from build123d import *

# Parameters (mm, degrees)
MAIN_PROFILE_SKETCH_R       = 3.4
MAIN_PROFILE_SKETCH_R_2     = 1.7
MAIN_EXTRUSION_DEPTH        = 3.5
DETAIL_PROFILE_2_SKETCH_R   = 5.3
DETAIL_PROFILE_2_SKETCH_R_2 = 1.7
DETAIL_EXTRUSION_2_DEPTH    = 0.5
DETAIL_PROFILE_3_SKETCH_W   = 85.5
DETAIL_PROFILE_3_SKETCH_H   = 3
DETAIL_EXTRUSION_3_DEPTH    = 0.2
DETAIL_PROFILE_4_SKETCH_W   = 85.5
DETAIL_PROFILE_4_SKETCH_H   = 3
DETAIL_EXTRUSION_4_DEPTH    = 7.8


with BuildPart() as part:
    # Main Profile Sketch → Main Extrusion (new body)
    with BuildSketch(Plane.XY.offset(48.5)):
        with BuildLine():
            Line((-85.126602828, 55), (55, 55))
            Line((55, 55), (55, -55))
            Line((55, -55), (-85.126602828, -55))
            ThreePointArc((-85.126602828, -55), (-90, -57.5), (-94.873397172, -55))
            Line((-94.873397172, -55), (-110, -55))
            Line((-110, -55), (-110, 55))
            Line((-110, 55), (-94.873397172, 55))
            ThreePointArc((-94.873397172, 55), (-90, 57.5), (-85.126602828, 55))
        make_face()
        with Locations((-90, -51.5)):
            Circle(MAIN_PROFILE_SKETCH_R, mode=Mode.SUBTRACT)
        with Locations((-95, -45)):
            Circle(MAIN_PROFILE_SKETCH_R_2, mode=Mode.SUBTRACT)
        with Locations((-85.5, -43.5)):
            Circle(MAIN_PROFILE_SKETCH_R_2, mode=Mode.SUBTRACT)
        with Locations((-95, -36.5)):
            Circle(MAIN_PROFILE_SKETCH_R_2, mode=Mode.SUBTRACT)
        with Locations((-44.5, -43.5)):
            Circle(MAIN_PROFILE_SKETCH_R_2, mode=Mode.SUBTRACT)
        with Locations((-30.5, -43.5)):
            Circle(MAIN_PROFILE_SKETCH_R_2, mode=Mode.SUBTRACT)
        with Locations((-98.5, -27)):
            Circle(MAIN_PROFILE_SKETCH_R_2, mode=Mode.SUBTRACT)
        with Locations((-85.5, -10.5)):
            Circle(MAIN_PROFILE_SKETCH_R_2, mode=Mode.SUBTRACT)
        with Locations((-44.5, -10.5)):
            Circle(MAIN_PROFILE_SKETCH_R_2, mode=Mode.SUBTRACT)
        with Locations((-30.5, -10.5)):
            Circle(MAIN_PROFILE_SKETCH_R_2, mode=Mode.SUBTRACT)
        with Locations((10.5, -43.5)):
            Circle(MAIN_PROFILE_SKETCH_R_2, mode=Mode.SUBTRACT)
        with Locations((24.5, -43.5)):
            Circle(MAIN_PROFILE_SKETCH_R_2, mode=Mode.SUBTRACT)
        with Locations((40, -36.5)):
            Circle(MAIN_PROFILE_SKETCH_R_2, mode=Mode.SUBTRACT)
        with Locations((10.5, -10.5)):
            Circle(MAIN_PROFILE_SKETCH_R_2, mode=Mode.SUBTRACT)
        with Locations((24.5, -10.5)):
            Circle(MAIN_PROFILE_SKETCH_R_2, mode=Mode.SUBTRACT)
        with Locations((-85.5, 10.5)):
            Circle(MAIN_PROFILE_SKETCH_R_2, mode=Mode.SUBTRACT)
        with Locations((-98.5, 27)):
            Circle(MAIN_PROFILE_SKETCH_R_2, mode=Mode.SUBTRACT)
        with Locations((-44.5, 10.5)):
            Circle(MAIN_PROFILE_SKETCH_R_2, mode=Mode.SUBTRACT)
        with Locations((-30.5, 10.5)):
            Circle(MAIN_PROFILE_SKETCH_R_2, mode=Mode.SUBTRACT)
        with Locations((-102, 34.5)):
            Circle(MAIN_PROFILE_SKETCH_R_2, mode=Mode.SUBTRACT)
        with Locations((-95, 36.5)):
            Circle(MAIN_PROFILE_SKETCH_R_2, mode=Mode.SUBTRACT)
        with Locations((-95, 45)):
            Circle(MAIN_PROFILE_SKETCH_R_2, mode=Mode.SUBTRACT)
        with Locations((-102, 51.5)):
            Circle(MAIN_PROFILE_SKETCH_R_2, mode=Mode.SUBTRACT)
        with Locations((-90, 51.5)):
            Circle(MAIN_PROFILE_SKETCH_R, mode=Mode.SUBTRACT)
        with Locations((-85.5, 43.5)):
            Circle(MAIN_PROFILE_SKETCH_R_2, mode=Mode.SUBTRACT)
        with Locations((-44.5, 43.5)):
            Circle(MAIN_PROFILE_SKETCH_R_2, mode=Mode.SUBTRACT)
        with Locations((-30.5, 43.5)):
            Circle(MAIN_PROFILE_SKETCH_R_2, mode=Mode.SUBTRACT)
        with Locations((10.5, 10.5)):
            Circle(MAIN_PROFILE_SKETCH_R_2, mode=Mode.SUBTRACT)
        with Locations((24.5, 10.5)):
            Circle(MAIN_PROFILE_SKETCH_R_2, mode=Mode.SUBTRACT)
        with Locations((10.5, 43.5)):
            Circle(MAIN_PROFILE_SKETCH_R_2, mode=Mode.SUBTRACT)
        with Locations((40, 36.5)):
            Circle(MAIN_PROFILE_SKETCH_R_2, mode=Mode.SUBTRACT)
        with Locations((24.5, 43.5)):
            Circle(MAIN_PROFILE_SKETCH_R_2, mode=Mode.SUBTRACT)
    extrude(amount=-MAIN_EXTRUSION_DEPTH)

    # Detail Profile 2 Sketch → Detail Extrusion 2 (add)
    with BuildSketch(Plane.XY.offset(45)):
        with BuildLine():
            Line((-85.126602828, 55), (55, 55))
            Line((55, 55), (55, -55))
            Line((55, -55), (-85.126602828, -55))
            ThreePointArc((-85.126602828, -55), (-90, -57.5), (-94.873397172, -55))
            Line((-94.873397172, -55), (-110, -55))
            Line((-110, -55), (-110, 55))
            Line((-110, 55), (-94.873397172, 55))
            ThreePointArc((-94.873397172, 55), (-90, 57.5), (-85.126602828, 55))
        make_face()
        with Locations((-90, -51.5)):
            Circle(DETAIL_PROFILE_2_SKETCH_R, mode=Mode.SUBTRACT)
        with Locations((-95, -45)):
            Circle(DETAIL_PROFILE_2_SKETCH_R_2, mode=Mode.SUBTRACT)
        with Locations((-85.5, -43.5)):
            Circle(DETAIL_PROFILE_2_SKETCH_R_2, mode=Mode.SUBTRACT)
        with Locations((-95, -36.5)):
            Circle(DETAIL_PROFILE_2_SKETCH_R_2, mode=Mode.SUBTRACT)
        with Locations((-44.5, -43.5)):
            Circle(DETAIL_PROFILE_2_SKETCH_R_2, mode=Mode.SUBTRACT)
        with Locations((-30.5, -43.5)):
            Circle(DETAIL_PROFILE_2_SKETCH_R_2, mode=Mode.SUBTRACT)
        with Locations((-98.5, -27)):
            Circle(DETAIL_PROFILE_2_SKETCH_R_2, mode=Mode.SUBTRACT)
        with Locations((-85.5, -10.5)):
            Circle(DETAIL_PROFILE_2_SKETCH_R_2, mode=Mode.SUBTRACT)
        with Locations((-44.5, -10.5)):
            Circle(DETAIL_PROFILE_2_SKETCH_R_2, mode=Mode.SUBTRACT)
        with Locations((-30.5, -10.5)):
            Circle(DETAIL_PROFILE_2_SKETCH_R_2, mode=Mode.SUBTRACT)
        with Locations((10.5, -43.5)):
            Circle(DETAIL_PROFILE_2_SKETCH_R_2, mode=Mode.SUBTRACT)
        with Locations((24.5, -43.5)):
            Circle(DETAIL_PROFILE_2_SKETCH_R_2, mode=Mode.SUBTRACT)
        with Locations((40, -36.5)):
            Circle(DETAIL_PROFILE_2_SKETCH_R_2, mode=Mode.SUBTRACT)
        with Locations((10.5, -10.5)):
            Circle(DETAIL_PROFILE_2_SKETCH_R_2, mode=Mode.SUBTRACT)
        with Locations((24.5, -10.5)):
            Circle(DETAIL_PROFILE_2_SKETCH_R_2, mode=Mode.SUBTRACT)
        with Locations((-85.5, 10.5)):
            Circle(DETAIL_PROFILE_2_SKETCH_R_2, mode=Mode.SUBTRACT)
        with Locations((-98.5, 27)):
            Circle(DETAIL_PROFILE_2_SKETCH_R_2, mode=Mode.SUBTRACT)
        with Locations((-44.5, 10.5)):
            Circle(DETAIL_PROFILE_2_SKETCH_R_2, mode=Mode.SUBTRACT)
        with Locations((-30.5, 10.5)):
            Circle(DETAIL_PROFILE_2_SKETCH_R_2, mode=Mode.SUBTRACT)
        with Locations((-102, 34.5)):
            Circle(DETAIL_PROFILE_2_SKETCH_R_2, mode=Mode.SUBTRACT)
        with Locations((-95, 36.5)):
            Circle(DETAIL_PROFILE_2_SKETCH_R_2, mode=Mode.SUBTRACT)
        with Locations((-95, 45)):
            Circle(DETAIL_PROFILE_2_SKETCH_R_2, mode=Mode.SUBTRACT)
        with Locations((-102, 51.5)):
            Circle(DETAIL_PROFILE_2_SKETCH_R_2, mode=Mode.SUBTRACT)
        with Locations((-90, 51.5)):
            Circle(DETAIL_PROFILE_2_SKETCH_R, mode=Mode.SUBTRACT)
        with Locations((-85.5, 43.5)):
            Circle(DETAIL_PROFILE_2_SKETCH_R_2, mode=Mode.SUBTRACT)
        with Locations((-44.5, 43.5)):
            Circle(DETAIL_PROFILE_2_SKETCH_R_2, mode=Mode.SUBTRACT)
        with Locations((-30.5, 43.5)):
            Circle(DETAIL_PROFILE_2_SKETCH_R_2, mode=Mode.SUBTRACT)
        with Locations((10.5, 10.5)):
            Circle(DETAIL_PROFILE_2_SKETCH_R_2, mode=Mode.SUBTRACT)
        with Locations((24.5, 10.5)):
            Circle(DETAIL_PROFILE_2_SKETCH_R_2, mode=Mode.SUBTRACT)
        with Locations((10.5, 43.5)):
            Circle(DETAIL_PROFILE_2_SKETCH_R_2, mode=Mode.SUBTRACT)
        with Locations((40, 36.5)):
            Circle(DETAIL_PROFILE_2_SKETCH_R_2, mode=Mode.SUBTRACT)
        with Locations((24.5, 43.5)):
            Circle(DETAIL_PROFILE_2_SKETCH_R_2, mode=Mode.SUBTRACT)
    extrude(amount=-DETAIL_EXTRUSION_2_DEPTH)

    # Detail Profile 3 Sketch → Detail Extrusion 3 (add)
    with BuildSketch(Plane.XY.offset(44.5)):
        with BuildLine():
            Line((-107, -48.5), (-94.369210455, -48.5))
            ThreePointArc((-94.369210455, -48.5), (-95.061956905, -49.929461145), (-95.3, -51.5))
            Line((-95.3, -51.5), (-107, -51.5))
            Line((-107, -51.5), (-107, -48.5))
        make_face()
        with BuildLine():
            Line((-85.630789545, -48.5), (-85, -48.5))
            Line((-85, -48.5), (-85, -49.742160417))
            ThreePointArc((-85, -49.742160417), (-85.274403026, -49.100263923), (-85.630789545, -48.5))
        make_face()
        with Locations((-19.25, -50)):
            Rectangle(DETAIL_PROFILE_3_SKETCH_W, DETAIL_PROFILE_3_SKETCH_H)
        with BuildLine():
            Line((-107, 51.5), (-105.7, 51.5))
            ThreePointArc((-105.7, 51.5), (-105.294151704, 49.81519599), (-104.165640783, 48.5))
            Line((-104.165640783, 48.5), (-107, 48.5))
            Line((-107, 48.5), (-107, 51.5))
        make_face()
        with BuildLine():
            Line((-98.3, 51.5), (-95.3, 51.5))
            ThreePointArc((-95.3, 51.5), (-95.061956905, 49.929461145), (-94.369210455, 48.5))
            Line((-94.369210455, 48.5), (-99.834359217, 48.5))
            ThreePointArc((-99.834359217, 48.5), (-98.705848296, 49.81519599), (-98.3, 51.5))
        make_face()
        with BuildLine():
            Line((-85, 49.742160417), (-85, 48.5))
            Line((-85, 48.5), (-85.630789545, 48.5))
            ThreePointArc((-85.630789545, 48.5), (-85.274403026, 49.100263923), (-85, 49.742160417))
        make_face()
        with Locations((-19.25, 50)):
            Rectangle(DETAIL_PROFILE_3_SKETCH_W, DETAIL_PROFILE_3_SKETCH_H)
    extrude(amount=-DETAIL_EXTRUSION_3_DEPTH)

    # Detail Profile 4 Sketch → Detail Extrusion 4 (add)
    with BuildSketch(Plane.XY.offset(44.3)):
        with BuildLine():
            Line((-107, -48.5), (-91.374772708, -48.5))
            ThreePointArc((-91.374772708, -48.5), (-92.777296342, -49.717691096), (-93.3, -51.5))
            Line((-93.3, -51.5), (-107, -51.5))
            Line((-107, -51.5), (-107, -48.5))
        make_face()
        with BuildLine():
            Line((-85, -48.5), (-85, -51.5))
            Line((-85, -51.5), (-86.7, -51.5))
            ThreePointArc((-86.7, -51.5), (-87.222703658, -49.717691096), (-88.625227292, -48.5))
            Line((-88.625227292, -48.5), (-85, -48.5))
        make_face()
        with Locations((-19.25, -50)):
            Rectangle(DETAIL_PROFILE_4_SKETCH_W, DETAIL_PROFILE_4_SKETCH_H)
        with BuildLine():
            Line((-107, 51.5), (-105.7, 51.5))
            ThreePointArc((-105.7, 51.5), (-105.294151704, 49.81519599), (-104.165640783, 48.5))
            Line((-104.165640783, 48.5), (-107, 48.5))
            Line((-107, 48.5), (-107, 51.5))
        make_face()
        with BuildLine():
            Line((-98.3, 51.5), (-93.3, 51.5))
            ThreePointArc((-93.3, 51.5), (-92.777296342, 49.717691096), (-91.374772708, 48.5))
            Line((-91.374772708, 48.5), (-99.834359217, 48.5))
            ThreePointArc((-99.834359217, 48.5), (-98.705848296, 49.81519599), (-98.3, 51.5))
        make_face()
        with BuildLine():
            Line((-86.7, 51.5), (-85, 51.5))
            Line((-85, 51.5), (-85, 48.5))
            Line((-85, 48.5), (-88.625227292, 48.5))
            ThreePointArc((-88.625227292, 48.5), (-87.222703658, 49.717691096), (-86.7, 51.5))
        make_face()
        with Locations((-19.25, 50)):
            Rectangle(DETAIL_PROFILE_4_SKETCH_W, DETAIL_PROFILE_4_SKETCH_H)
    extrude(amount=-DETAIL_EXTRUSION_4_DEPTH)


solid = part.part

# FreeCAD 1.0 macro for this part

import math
import FreeCAD as App
import Part
import Sketcher
Q = App.Units.Quantity


def add_polygon(sketch, points):
    """Adds a closed chain of lines whose ends are joined by coincident constraints."""
    first, n = sketch.GeometryCount, len(points)
    for a, b in zip(points, points[1:] + points[:1]):
        sketch.addGeometry(Part.LineSegment(App.Vector(*a, 0), App.Vector(*b, 0)), False)
    for i in range(n):
        sketch.addConstraint(Sketcher.Constraint("Coincident", first + i, 2, first + (i + 1) % n, 1))

doc = App.newDocument("Part")
body = doc.addObject("PartDesign::Body", "Body")

# Sketch on XY plane
sketch1 = body.newObject("Sketcher::SketchObject", "Sketch")
sketch1.AttachmentSupport = (doc.getObject("XY_Plane"), [""])
sketch1.MapMode = "FlatFace"
sketch1.AttachmentOffset = App.Placement(App.Vector(0, 0, 48.5), App.Rotation())
sketch1.addGeometry([
    Part.LineSegment(App.Vector(55, 55, 0), App.Vector(-85.126603, 55, 0)),  # 0
    Part.ArcOfCircle(Part.Circle(App.Vector(-90, 51.5, 0), App.Vector(0, 0, 1), 6), math.radians(35.685335), math.radians(144.314665)),  # 1
    Part.LineSegment(App.Vector(-94.873397, 55, 0), App.Vector(-110, 55, 0)),  # 2
    Part.LineSegment(App.Vector(-110, 55, 0), App.Vector(-110, -55, 0)),  # 3
    Part.LineSegment(App.Vector(-110, -55, 0), App.Vector(-94.873397, -55, 0)),  # 4
    Part.ArcOfCircle(Part.Circle(App.Vector(-90, -51.5, 0), App.Vector(0, 0, 1), 6), math.radians(-144.314665), math.radians(-35.685335)),  # 5
    Part.LineSegment(App.Vector(-85.126603, -55, 0), App.Vector(55, -55, 0)),  # 6
    Part.LineSegment(App.Vector(55, -55, 0), App.Vector(55, 55, 0)),  # 7
    Part.Circle(App.Vector(24.5, -43.5, 0), App.Vector(0, 0, 1), 1.7),  # 8
    Part.Circle(App.Vector(10.5, -43.5, 0), App.Vector(0, 0, 1), 1.7),  # 9
    Part.Circle(App.Vector(40, -36.5, 0), App.Vector(0, 0, 1), 1.7),  # 10
    Part.Circle(App.Vector(-30.5, -43.5, 0), App.Vector(0, 0, 1), 1.7),  # 11
    Part.Circle(App.Vector(24.5, -10.5, 0), App.Vector(0, 0, 1), 1.7),  # 12
    Part.Circle(App.Vector(10.5, -10.5, 0), App.Vector(0, 0, 1), 1.7),  # 13
    Part.Circle(App.Vector(-30.5, -10.5, 0), App.Vector(0, 0, 1), 1.7),  # 14
    Part.Circle(App.Vector(-44.5, -43.5, 0), App.Vector(0, 0, 1), 1.7),  # 15
    Part.Circle(App.Vector(-85.5, -43.5, 0), App.Vector(0, 0, 1), 1.7),  # 16
    Part.Circle(App.Vector(-90, -51.5, 0), App.Vector(0, 0, 1), 3.4),  # 17
    Part.Circle(App.Vector(-95, -45, 0), App.Vector(0, 0, 1), 1.7),  # 18
    Part.Circle(App.Vector(-95, -36.5, 0), App.Vector(0, 0, 1), 1.7),  # 19
    Part.Circle(App.Vector(-44.5, -10.5, 0), App.Vector(0, 0, 1), 1.7),  # 20
    Part.Circle(App.Vector(-98.5, -27, 0), App.Vector(0, 0, 1), 1.7),  # 21
    Part.Circle(App.Vector(-85.5, -10.5, 0), App.Vector(0, 0, 1), 1.7),  # 22
    Part.Circle(App.Vector(24.5, 10.5, 0), App.Vector(0, 0, 1), 1.7),  # 23
    Part.Circle(App.Vector(10.5, 10.5, 0), App.Vector(0, 0, 1), 1.7),  # 24
    Part.Circle(App.Vector(-30.5, 10.5, 0), App.Vector(0, 0, 1), 1.7),  # 25
    Part.Circle(App.Vector(40, 36.5, 0), App.Vector(0, 0, 1), 1.7),  # 26
    Part.Circle(App.Vector(24.5, 43.5, 0), App.Vector(0, 0, 1), 1.7),  # 27
    Part.Circle(App.Vector(10.5, 43.5, 0), App.Vector(0, 0, 1), 1.7),  # 28
    Part.Circle(App.Vector(-30.5, 43.5, 0), App.Vector(0, 0, 1), 1.7),  # 29
    Part.Circle(App.Vector(-44.5, 10.5, 0), App.Vector(0, 0, 1), 1.7),  # 30
    Part.Circle(App.Vector(-85.5, 10.5, 0), App.Vector(0, 0, 1), 1.7),  # 31
    Part.Circle(App.Vector(-98.5, 27, 0), App.Vector(0, 0, 1), 1.7),  # 32
    Part.Circle(App.Vector(-44.5, 43.5, 0), App.Vector(0, 0, 1), 1.7),  # 33
    Part.Circle(App.Vector(-95, 36.5, 0), App.Vector(0, 0, 1), 1.7),  # 34
    Part.Circle(App.Vector(-102, 34.5, 0), App.Vector(0, 0, 1), 1.7),  # 35
    Part.Circle(App.Vector(-85.5, 43.5, 0), App.Vector(0, 0, 1), 1.7),  # 36
    Part.Circle(App.Vector(-95, 45, 0), App.Vector(0, 0, 1), 1.7),  # 37
    Part.Circle(App.Vector(-90, 51.5, 0), App.Vector(0, 0, 1), 3.4),  # 38
    Part.Circle(App.Vector(-102, 51.5, 0), App.Vector(0, 0, 1), 1.7),  # 39
], False)
sketch1.addConstraint([
    Sketcher.Constraint("Coincident", 0, 2, 1, 1),
    Sketcher.Constraint("Coincident", 1, 2, 2, 1),
    Sketcher.Constraint("Coincident", 2, 2, 3, 1),
    Sketcher.Constraint("Coincident", 3, 2, 4, 1),
    Sketcher.Constraint("Coincident", 4, 2, 5, 1),
    Sketcher.Constraint("Coincident", 5, 2, 6, 1),
    Sketcher.Constraint("Coincident", 6, 2, 7, 1),
    Sketcher.Constraint("Coincident", 7, 2, 0, 1),
    Sketcher.Constraint("Horizontal", 0),
    Sketcher.Constraint("Horizontal", 2),
    Sketcher.Constraint("Vertical", 3),
    Sketcher.Constraint("Horizontal", 4),
    Sketcher.Constraint("Horizontal", 6),
    Sketcher.Constraint("Vertical", 7),
    Sketcher.Constraint("Coincident", 17, 3, 5, 3),
    Sketcher.Constraint("Coincident", 38, 3, 1, 3),
    Sketcher.Constraint("Equal", 1, 5),
    Sketcher.Constraint("Equal", 8, 9),
    Sketcher.Constraint("Equal", 9, 10),
    Sketcher.Constraint("Equal", 10, 11),
    Sketcher.Constraint("Equal", 11, 12),
    Sketcher.Constraint("Equal", 12, 13),
    Sketcher.Constraint("Equal", 13, 14),
    Sketcher.Constraint("Equal", 14, 15),
    Sketcher.Constraint("Equal", 15, 16),
    Sketcher.Constraint("Equal", 16, 18),
    Sketcher.Constraint("Equal", 18, 19),
    Sketcher.Constraint("Equal", 19, 20),
    Sketcher.Constraint("Equal", 20, 21),
    Sketcher.Constraint("Equal", 21, 22),
    Sketcher.Constraint("Equal", 22, 23),
    Sketcher.Constraint("Equal", 23, 24),
    Sketcher.Constraint("Equal", 24, 25),
    Sketcher.Constraint("Equal", 25, 26),
    Sketcher.Constraint("Equal", 26, 27),
    Sketcher.Constraint("Equal", 27, 28),
    Sketcher.Constraint("Equal", 28, 29),
    Sketcher.Constraint("Equal", 29, 30),
    Sketcher.Constraint("Equal", 30, 31),
    Sketcher.Constraint("Equal", 31, 32),
    Sketcher.Constraint("Equal", 32, 33),
    Sketcher.Constraint("Equal", 33, 34),
    Sketcher.Constraint("Equal", 34, 35),
    Sketcher.Constraint("Equal", 35, 36),
    Sketcher.Constraint("Equal", 36, 37),
    Sketcher.Constraint("Equal", 17, 38),
    Sketcher.Constraint("Equal", 37, 39),
    Sketcher.Constraint("Symmetric", 1, 3, 5, 3, -1),
    Sketcher.Constraint("Symmetric", 12, 3, 23, 3, -1),
    Sketcher.Constraint("Symmetric", 13, 3, 24, 3, -1),
    Sketcher.Constraint("Symmetric", 14, 3, 25, 3, -1),
    Sketcher.Constraint("Symmetric", 10, 3, 26, 3, -1),
    Sketcher.Constraint("Symmetric", 8, 3, 27, 3, -1),
    Sketcher.Constraint("Symmetric", 9, 3, 28, 3, -1),
    Sketcher.Constraint("Symmetric", 11, 3, 29, 3, -1),
    Sketcher.Constraint("Symmetric", 20, 3, 30, 3, -1),
    Sketcher.Constraint("Symmetric", 22, 3, 31, 3, -1),
    Sketcher.Constraint("Symmetric", 21, 3, 32, 3, -1),
    Sketcher.Constraint("Symmetric", 15, 3, 33, 3, -1),
    Sketcher.Constraint("Symmetric", 19, 3, 34, 3, -1),
    Sketcher.Constraint("Symmetric", 16, 3, 36, 3, -1),
    Sketcher.Constraint("Symmetric", 18, 3, 37, 3, -1),
    Sketcher.Constraint("Horizontal", 8, 3, 9, 3),
    Sketcher.Constraint("Horizontal", 9, 3, 11, 3),
    Sketcher.Constraint("Horizontal", 12, 3, 13, 3),
    Sketcher.Constraint("Horizontal", 13, 3, 14, 3),
    Sketcher.Constraint("Horizontal", 11, 3, 15, 3),
    Sketcher.Constraint("Horizontal", 15, 3, 16, 3),
    Sketcher.Constraint("Horizontal", 10, 3, 19, 3),
    Sketcher.Constraint("Horizontal", 14, 3, 20, 3),
    Sketcher.Constraint("Horizontal", 20, 3, 22, 3),
    Sketcher.Constraint("Horizontal", 38, 3, 39, 3),
    Sketcher.Constraint("Horizontal", 0, 2, 1, 2),
    Sketcher.Constraint("Horizontal", 4, 2, 5, 2),
    Sketcher.Constraint("Vertical", 8, 3, 12, 3),
    Sketcher.Constraint("Vertical", 9, 3, 13, 3),
    Sketcher.Constraint("Vertical", 11, 3, 14, 3),
    Sketcher.Constraint("Vertical", 18, 3, 19, 3),
    Sketcher.Constraint("Vertical", 15, 3, 20, 3),
    Sketcher.Constraint("Vertical", 16, 3, 22, 3),
    Sketcher.Constraint("Vertical", 35, 3, 39, 3),
    Sketcher.Constraint("Vertical", 1, 2, 4, 2),
    Sketcher.Constraint("Radius", 1, Q("6 mm")),
    Sketcher.Constraint("Diameter", 8, Q("3.4 mm")),
    Sketcher.Constraint("Diameter", 17, Q("6.8 mm")),
    Sketcher.Constraint("DistanceY", 3, 2, 3, 1, Q("110 mm")),
    Sketcher.Constraint("DistanceX", 1, 3, -1, 1, Q("90 mm")),
    Sketcher.Constraint("DistanceX", -1, 1, 10, 3, Q("40 mm")),
    Sketcher.Constraint("DistanceX", 18, 3, -1, 1, Q("95 mm")),
    Sketcher.Constraint("DistanceY", 18, 3, -1, 1, Q("45 mm")),
    Sketcher.Constraint("DistanceY", 21, 3, -1, 1, Q("27 mm")),
    Sketcher.Constraint("DistanceX", 35, 3, -1, 1, Q("102 mm")),
    Sketcher.Constraint("DistanceX", 2, 2, -1, 1, Q("110 mm")),
    Sketcher.Constraint("DistanceX", -1, 1, 6, 2, Q("55 mm")),
    Sketcher.Constraint("DistanceY", 5, 3, 1, 3, Q("103 mm")),
    Sketcher.Constraint("DistanceY", 5, 3, 8, 3, Q("8 mm")),
    Sketcher.Constraint("DistanceX", 9, 3, 8, 3, Q("14 mm")),
    Sketcher.Constraint("DistanceY", 8, 3, 10, 3, Q("7 mm")),
    Sketcher.Constraint("DistanceX", 11, 3, 9, 3, Q("41 mm")),
    Sketcher.Constraint("DistanceY", 10, 3, 12, 3, Q("26 mm")),
    Sketcher.Constraint("DistanceX", 15, 3, 11, 3, Q("14 mm")),
    Sketcher.Constraint("DistanceX", 16, 3, 15, 3, Q("41 mm")),
    Sketcher.Constraint("DistanceX", 21, 3, 16, 3, Q("13 mm")),
    Sketcher.Constraint("DistanceY", 35, 3, 34, 3, Q("2 mm")),
    Sketcher.Constraint("DistanceX", -1, 1, 8, 3, Q("24.5 mm")),
])
pad1 = body.newObject("PartDesign::Pad", "Pad")
pad1.Profile = sketch1
pad1.Length = 3.5
pad1.Reversed = True

# Sketch on XY plane
sketch2 = body.newObject("Sketcher::SketchObject", "Sketch001")
sketch2.AttachmentSupport = (doc.getObject("XY_Plane"), [""])
sketch2.MapMode = "FlatFace"
sketch2.AttachmentOffset = App.Placement(App.Vector(0, 0, 45), App.Rotation())
sketch2.addGeometry([
    Part.LineSegment(App.Vector(55, 55, 0), App.Vector(-85.126603, 55, 0)),  # 0
    Part.ArcOfCircle(Part.Circle(App.Vector(-90, 51.5, 0), App.Vector(0, 0, 1), 6), math.radians(35.685335), math.radians(144.314665)),  # 1
    Part.LineSegment(App.Vector(-94.873397, 55, 0), App.Vector(-110, 55, 0)),  # 2
    Part.LineSegment(App.Vector(-110, 55, 0), App.Vector(-110, -55, 0)),  # 3
    Part.LineSegment(App.Vector(-110, -55, 0), App.Vector(-94.873397, -55, 0)),  # 4
    Part.ArcOfCircle(Part.Circle(App.Vector(-90, -51.5, 0), App.Vector(0, 0, 1), 6), math.radians(-144.314665), math.radians(-35.685335)),  # 5
    Part.LineSegment(App.Vector(-85.126603, -55, 0), App.Vector(55, -55, 0)),  # 6
    Part.LineSegment(App.Vector(55, -55, 0), App.Vector(55, 55, 0)),  # 7
    Part.Circle(App.Vector(24.5, -43.5, 0), App.Vector(0, 0, 1), 1.7),  # 8
    Part.Circle(App.Vector(10.5, -43.5, 0), App.Vector(0, 0, 1), 1.7),  # 9
    Part.Circle(App.Vector(40, -36.5, 0), App.Vector(0, 0, 1), 1.7),  # 10
    Part.Circle(App.Vector(-30.5, -43.5, 0), App.Vector(0, 0, 1), 1.7),  # 11
    Part.Circle(App.Vector(24.5, -10.5, 0), App.Vector(0, 0, 1), 1.7),  # 12
    Part.Circle(App.Vector(10.5, -10.5, 0), App.Vector(0, 0, 1), 1.7),  # 13
    Part.Circle(App.Vector(-30.5, -10.5, 0), App.Vector(0, 0, 1), 1.7),  # 14
    Part.Circle(App.Vector(-44.5, -43.5, 0), App.Vector(0, 0, 1), 1.7),  # 15
    Part.Circle(App.Vector(-85.5, -43.5, 0), App.Vector(0, 0, 1), 1.7),  # 16
    Part.Circle(App.Vector(-90, -51.5, 0), App.Vector(0, 0, 1), 5.3),  # 17
    Part.Circle(App.Vector(-95, -45, 0), App.Vector(0, 0, 1), 1.7),  # 18
    Part.Circle(App.Vector(-95, -36.5, 0), App.Vector(0, 0, 1), 1.7),  # 19
    Part.Circle(App.Vector(-44.5, -10.5, 0), App.Vector(0, 0, 1), 1.7),  # 20
    Part.Circle(App.Vector(-98.5, -27, 0), App.Vector(0, 0, 1), 1.7),  # 21
    Part.Circle(App.Vector(-85.5, -10.5, 0), App.Vector(0, 0, 1), 1.7),  # 22
    Part.Circle(App.Vector(24.5, 10.5, 0), App.Vector(0, 0, 1), 1.7),  # 23
    Part.Circle(App.Vector(10.5, 10.5, 0), App.Vector(0, 0, 1), 1.7),  # 24
    Part.Circle(App.Vector(-30.5, 10.5, 0), App.Vector(0, 0, 1), 1.7),  # 25
    Part.Circle(App.Vector(40, 36.5, 0), App.Vector(0, 0, 1), 1.7),  # 26
    Part.Circle(App.Vector(24.5, 43.5, 0), App.Vector(0, 0, 1), 1.7),  # 27
    Part.Circle(App.Vector(10.5, 43.5, 0), App.Vector(0, 0, 1), 1.7),  # 28
    Part.Circle(App.Vector(-30.5, 43.5, 0), App.Vector(0, 0, 1), 1.7),  # 29
    Part.Circle(App.Vector(-44.5, 10.5, 0), App.Vector(0, 0, 1), 1.7),  # 30
    Part.Circle(App.Vector(-85.5, 10.5, 0), App.Vector(0, 0, 1), 1.7),  # 31
    Part.Circle(App.Vector(-98.5, 27, 0), App.Vector(0, 0, 1), 1.7),  # 32
    Part.Circle(App.Vector(-44.5, 43.5, 0), App.Vector(0, 0, 1), 1.7),  # 33
    Part.Circle(App.Vector(-102, 34.5, 0), App.Vector(0, 0, 1), 1.7),  # 34
    Part.Circle(App.Vector(-95, 36.5, 0), App.Vector(0, 0, 1), 1.7),  # 35
    Part.Circle(App.Vector(-85.5, 43.5, 0), App.Vector(0, 0, 1), 1.7),  # 36
    Part.Circle(App.Vector(-95, 45, 0), App.Vector(0, 0, 1), 1.7),  # 37
    Part.Circle(App.Vector(-90, 51.5, 0), App.Vector(0, 0, 1), 5.3),  # 38
    Part.Circle(App.Vector(-102, 51.5, 0), App.Vector(0, 0, 1), 1.7),  # 39
], False)
sketch2.addConstraint([
    Sketcher.Constraint("Coincident", 0, 2, 1, 1),
    Sketcher.Constraint("Coincident", 1, 2, 2, 1),
    Sketcher.Constraint("Coincident", 2, 2, 3, 1),
    Sketcher.Constraint("Coincident", 3, 2, 4, 1),
    Sketcher.Constraint("Coincident", 4, 2, 5, 1),
    Sketcher.Constraint("Coincident", 5, 2, 6, 1),
    Sketcher.Constraint("Coincident", 6, 2, 7, 1),
    Sketcher.Constraint("Coincident", 7, 2, 0, 1),
    Sketcher.Constraint("Horizontal", 0),
    Sketcher.Constraint("Horizontal", 2),
    Sketcher.Constraint("Vertical", 3),
    Sketcher.Constraint("Horizontal", 4),
    Sketcher.Constraint("Horizontal", 6),
    Sketcher.Constraint("Vertical", 7),
    Sketcher.Constraint("Coincident", 17, 3, 5, 3),
    Sketcher.Constraint("Coincident", 38, 3, 1, 3),
    Sketcher.Constraint("Equal", 1, 5),
    Sketcher.Constraint("Equal", 8, 9),
    Sketcher.Constraint("Equal", 9, 10),
    Sketcher.Constraint("Equal", 10, 11),
    Sketcher.Constraint("Equal", 11, 12),
    Sketcher.Constraint("Equal", 12, 13),
    Sketcher.Constraint("Equal", 13, 14),
    Sketcher.Constraint("Equal", 14, 15),
    Sketcher.Constraint("Equal", 15, 16),
    Sketcher.Constraint("Equal", 16, 18),
    Sketcher.Constraint("Equal", 18, 19),
    Sketcher.Constraint("Equal", 19, 20),
    Sketcher.Constraint("Equal", 20, 21),
    Sketcher.Constraint("Equal", 21, 22),
    Sketcher.Constraint("Equal", 22, 23),
    Sketcher.Constraint("Equal", 23, 24),
    Sketcher.Constraint("Equal", 24, 25),
    Sketcher.Constraint("Equal", 25, 26),
    Sketcher.Constraint("Equal", 26, 27),
    Sketcher.Constraint("Equal", 27, 28),
    Sketcher.Constraint("Equal", 28, 29),
    Sketcher.Constraint("Equal", 29, 30),
    Sketcher.Constraint("Equal", 30, 31),
    Sketcher.Constraint("Equal", 31, 32),
    Sketcher.Constraint("Equal", 32, 33),
    Sketcher.Constraint("Equal", 33, 34),
    Sketcher.Constraint("Equal", 34, 35),
    Sketcher.Constraint("Equal", 35, 36),
    Sketcher.Constraint("Equal", 36, 37),
    Sketcher.Constraint("Equal", 17, 38),
    Sketcher.Constraint("Equal", 37, 39),
    Sketcher.Constraint("Symmetric", 1, 3, 5, 3, -1),
    Sketcher.Constraint("Symmetric", 12, 3, 23, 3, -1),
    Sketcher.Constraint("Symmetric", 13, 3, 24, 3, -1),
    Sketcher.Constraint("Symmetric", 14, 3, 25, 3, -1),
    Sketcher.Constraint("Symmetric", 10, 3, 26, 3, -1),
    Sketcher.Constraint("Symmetric", 8, 3, 27, 3, -1),
    Sketcher.Constraint("Symmetric", 9, 3, 28, 3, -1),
    Sketcher.Constraint("Symmetric", 11, 3, 29, 3, -1),
    Sketcher.Constraint("Symmetric", 20, 3, 30, 3, -1),
    Sketcher.Constraint("Symmetric", 22, 3, 31, 3, -1),
    Sketcher.Constraint("Symmetric", 21, 3, 32, 3, -1),
    Sketcher.Constraint("Symmetric", 15, 3, 33, 3, -1),
    Sketcher.Constraint("Symmetric", 19, 3, 35, 3, -1),
    Sketcher.Constraint("Symmetric", 16, 3, 36, 3, -1),
    Sketcher.Constraint("Symmetric", 18, 3, 37, 3, -1),
    Sketcher.Constraint("Horizontal", 8, 3, 9, 3),
    Sketcher.Constraint("Horizontal", 9, 3, 11, 3),
    Sketcher.Constraint("Horizontal", 12, 3, 13, 3),
    Sketcher.Constraint("Horizontal", 13, 3, 14, 3),
    Sketcher.Constraint("Horizontal", 11, 3, 15, 3),
    Sketcher.Constraint("Horizontal", 15, 3, 16, 3),
    Sketcher.Constraint("Horizontal", 10, 3, 19, 3),
    Sketcher.Constraint("Horizontal", 14, 3, 20, 3),
    Sketcher.Constraint("Horizontal", 20, 3, 22, 3),
    Sketcher.Constraint("Horizontal", 38, 3, 39, 3),
    Sketcher.Constraint("Horizontal", 0, 2, 1, 2),
    Sketcher.Constraint("Horizontal", 4, 2, 5, 2),
    Sketcher.Constraint("Vertical", 8, 3, 12, 3),
    Sketcher.Constraint("Vertical", 9, 3, 13, 3),
    Sketcher.Constraint("Vertical", 11, 3, 14, 3),
    Sketcher.Constraint("Vertical", 18, 3, 19, 3),
    Sketcher.Constraint("Vertical", 15, 3, 20, 3),
    Sketcher.Constraint("Vertical", 16, 3, 22, 3),
    Sketcher.Constraint("Vertical", 34, 3, 39, 3),
    Sketcher.Constraint("Vertical", 1, 2, 4, 2),
    Sketcher.Constraint("Radius", 1, Q("6 mm")),
    Sketcher.Constraint("Diameter", 8, Q("3.4 mm")),
    Sketcher.Constraint("Diameter", 17, Q("10.6 mm")),
    Sketcher.Constraint("DistanceY", 3, 2, 3, 1, Q("110 mm")),
    Sketcher.Constraint("DistanceX", 1, 3, -1, 1, Q("90 mm")),
    Sketcher.Constraint("DistanceX", -1, 1, 10, 3, Q("40 mm")),
    Sketcher.Constraint("DistanceX", 18, 3, -1, 1, Q("95 mm")),
    Sketcher.Constraint("DistanceY", 18, 3, -1, 1, Q("45 mm")),
    Sketcher.Constraint("DistanceY", 21, 3, -1, 1, Q("27 mm")),
    Sketcher.Constraint("DistanceX", 34, 3, -1, 1, Q("102 mm")),
    Sketcher.Constraint("DistanceX", 2, 2, -1, 1, Q("110 mm")),
    Sketcher.Constraint("DistanceX", -1, 1, 6, 2, Q("55 mm")),
    Sketcher.Constraint("DistanceY", 5, 3, 1, 3, Q("103 mm")),
    Sketcher.Constraint("DistanceY", 5, 3, 8, 3, Q("8 mm")),
    Sketcher.Constraint("DistanceX", 9, 3, 8, 3, Q("14 mm")),
    Sketcher.Constraint("DistanceY", 8, 3, 10, 3, Q("7 mm")),
    Sketcher.Constraint("DistanceX", 11, 3, 9, 3, Q("41 mm")),
    Sketcher.Constraint("DistanceY", 10, 3, 12, 3, Q("26 mm")),
    Sketcher.Constraint("DistanceX", 15, 3, 11, 3, Q("14 mm")),
    Sketcher.Constraint("DistanceX", 16, 3, 15, 3, Q("41 mm")),
    Sketcher.Constraint("DistanceX", 21, 3, 16, 3, Q("13 mm")),
    Sketcher.Constraint("DistanceY", 34, 3, 1, 3, Q("17 mm")),
    Sketcher.Constraint("DistanceX", -1, 1, 8, 3, Q("24.5 mm")),
])
pad2 = body.newObject("PartDesign::Pad", "Pad001")
pad2.Profile = sketch2
pad2.Length = 0.5
pad2.Reversed = True

# Sketch on XY plane
sketch3 = body.newObject("Sketcher::SketchObject", "Sketch002")
sketch3.AttachmentSupport = (doc.getObject("XY_Plane"), [""])
sketch3.MapMode = "FlatFace"
sketch3.AttachmentOffset = App.Placement(App.Vector(0, 0, 44.5), App.Rotation())
sketch3.addGeometry(Part.LineSegment(App.Vector(-94.36921, -48.5, 0), App.Vector(-107, -48.5, 0)), False)  # 0
sketch3.addGeometry(Part.LineSegment(App.Vector(-107, -48.5, 0), App.Vector(-107, -51.5, 0)), False)  # 1
sketch3.addGeometry(Part.LineSegment(App.Vector(-107, -51.5, 0), App.Vector(-95.3, -51.5, 0)), False)  # 2
sketch3.addGeometry(Part.ArcOfCircle(Part.Circle(App.Vector(-90, -51.5, 0), App.Vector(0, 0, 1), 5.3), math.radians(145.525615), math.radians(180)), False)  # 3
sketch3.addGeometry(Part.LineSegment(App.Vector(-85, -48.5, 0), App.Vector(-85.63079, -48.5, 0)), False)  # 4
sketch3.addGeometry(Part.ArcOfCircle(Part.Circle(App.Vector(-90, -51.5, 0), App.Vector(0, 0, 1), 5.3), math.radians(19.370038), math.radians(34.474385)), False)  # 5
sketch3.addGeometry(Part.LineSegment(App.Vector(-85, -49.74216, 0), App.Vector(-85, -48.5, 0)), False)  # 6
add_polygon(sketch3, [(-62, -48.5), (-62, -51.5), (23.5, -51.5), (23.5, -48.5)])  # lines 7-10
sketch3.addGeometry(Part.LineSegment(App.Vector(-105.7, 51.5, 0), App.Vector(-107, 51.5, 0)), False)  # 11
sketch3.addGeometry(Part.LineSegment(App.Vector(-107, 51.5, 0), App.Vector(-107, 48.5, 0)), False)  # 12
sketch3.addGeometry(Part.LineSegment(App.Vector(-107, 48.5, 0), App.Vector(-104.165641, 48.5, 0)), False)  # 13
sketch3.addGeometry(Part.ArcOfCircle(Part.Circle(App.Vector(-102, 51.5, 0), App.Vector(0, 0, 1), 3.7), math.radians(180), math.radians(234.175226)), False)  # 14
sketch3.addGeometry(Part.LineSegment(App.Vector(-95.3, 51.5, 0), App.Vector(-98.3, 51.5, 0)), False)  # 15
sketch3.addGeometry(Part.ArcOfCircle(Part.Circle(App.Vector(-102, 51.5, 0), App.Vector(0, 0, 1), 3.7), math.radians(-54.175226), math.radians(0)), False)  # 16
sketch3.addGeometry(Part.LineSegment(App.Vector(-99.834359, 48.5, 0), App.Vector(-94.36921, 48.5, 0)), False)  # 17
sketch3.addGeometry(Part.ArcOfCircle(Part.Circle(App.Vector(-90, 51.5, 0), App.Vector(0, 0, 1), 5.3), math.radians(180), math.radians(214.474385)), False)  # 18
sketch3.addGeometry(Part.LineSegment(App.Vector(-85, 48.5, 0), App.Vector(-85, 49.74216, 0)), False)  # 19
sketch3.addGeometry(Part.ArcOfCircle(Part.Circle(App.Vector(-90, 51.5, 0), App.Vector(0, 0, 1), 5.3), math.radians(-34.474385), math.radians(-19.370038)), False)  # 20
sketch3.addGeometry(Part.LineSegment(App.Vector(-85.63079, 48.5, 0), App.Vector(-85, 48.5, 0)), False)  # 21
add_polygon(sketch3, [(-62, 51.5), (-62, 48.5), (23.5, 48.5), (23.5, 51.5)])  # lines 22-25
sketch3.addConstraint([
    Sketcher.Constraint("Coincident", 0, 2, 1, 1),
    Sketcher.Constraint("Coincident", 1, 2, 2, 1),
    Sketcher.Constraint("Coincident", 2, 2, 3, 2),
    Sketcher.Constraint("Coincident", 3, 1, 0, 1),
    Sketcher.Constraint("Coincident", 4, 2, 5, 2),
    Sketcher.Constraint("Coincident", 5, 1, 6, 1),
    Sketcher.Constraint("Coincident", 6, 2, 4, 1),
    Sketcher.Constraint("Coincident", 11, 2, 12, 1),
    Sketcher.Constraint("Coincident", 12, 2, 13, 1),
    Sketcher.Constraint("Coincident", 13, 2, 14, 2),
    Sketcher.Constraint("Coincident", 14, 1, 11, 1),
    Sketcher.Constraint("Coincident", 15, 2, 16, 2),
    Sketcher.Constraint("Coincident", 16, 1, 17, 1),
    Sketcher.Constraint("Coincident", 17, 2, 18, 2),
    Sketcher.Constraint("Coincident", 18, 1, 15, 1),
    Sketcher.Constraint("Coincident", 19, 2, 20, 2),
    Sketcher.Constraint("Coincident", 20, 1, 21, 1),
    Sketcher.Constraint("Coincident", 21, 2, 19, 1),
    Sketcher.Constraint("Horizontal", 0),
    Sketcher.Constraint("Vertical", 1),
    Sketcher.Constraint("Horizontal", 2),
    Sketcher.Constraint("Horizontal", 4),
    Sketcher.Constraint("Vertical", 6),
    Sketcher.Constraint("Vertical", 7),
    Sketcher.Constraint("Horizontal", 8),
    Sketcher.Constraint("Vertical", 9),
    Sketcher.Constraint("Horizontal", 10),
    Sketcher.Constraint("Horizontal", 11),
    Sketcher.Constraint("Vertical", 12),
    Sketcher.Constraint("Horizontal", 13),
    Sketcher.Constraint("Horizontal", 15),
    Sketcher.Constraint("Horizontal", 17),
    Sketcher.Constraint("Vertical", 19),
    Sketcher.Constraint("Horizontal", 21),
    Sketcher.Constraint("Vertical", 22),
    Sketcher.Constraint("Horizontal", 23),
    Sketcher.Constraint("Vertical", 24),
    Sketcher.Constraint("Horizontal", 25),
    Sketcher.Constraint("Coincident", 5, 3, 3, 3),
    Sketcher.Constraint("Coincident", 16, 3, 14, 3),
    Sketcher.Constraint("Coincident", 20, 3, 18, 3),
    Sketcher.Constraint("Equal", 3, 5),
    Sketcher.Constraint("Equal", 14, 16),
    Sketcher.Constraint("Equal", 5, 18),
    Sketcher.Constraint("Equal", 18, 20),
    Sketcher.Constraint("Symmetric", 3, 3, 18, 3, -1),
    Sketcher.Constraint("Symmetric", 1, 2, 11, 2, -1),
    Sketcher.Constraint("Symmetric", 6, 2, 21, 2, -1),
    Sketcher.Constraint("Symmetric", 10, 2, 22, 2, -1),
    Sketcher.Constraint("Symmetric", 8, 2, 24, 2, -1),
    Sketcher.Constraint("Horizontal", 16, 3, 18, 3),
    Sketcher.Constraint("Horizontal", 5, 3, 1, 2),
    Sketcher.Constraint("Horizontal", 3, 1, 4, 2),
    Sketcher.Constraint("Horizontal", 2, 2, 7, 2),
    Sketcher.Constraint("Horizontal", 6, 2, 9, 2),
    Sketcher.Constraint("Horizontal", 14, 1, 15, 2),
    Sketcher.Constraint("Horizontal", 13, 2, 16, 1),
    Sketcher.Constraint("Horizontal", 17, 2, 20, 1),
    Sketcher.Constraint("Equal", 15, 1),
    Sketcher.Constraint("Radius", 3, Q("5.3 mm")),
    Sketcher.Constraint("Radius", 14, Q("3.7 mm")),
    Sketcher.Constraint("DistanceX", 15, 2, 15, 1, Q("3 mm")),
    Sketcher.Constraint("DistanceX", 2, 1, 2, 2, Q("11.7 mm")),
    Sketcher.Constraint("DistanceX", 8, 1, 8, 2, Q("85.5 mm")),
    Sketcher.Constraint("DistanceX", 3, 3, -1, 1, Q("90 mm")),
    Sketcher.Constraint("DistanceX", 5, 1, -1, 1, Q("85 mm")),
    Sketcher.Constraint("DistanceX", 7, 2, -1, 1, Q("62 mm")),
    Sketcher.Constraint("DistanceY", 3, 3, 14, 3, Q("103 mm")),
])
pad3 = body.newObject("PartDesign::Pad", "Pad002")
pad3.Profile = sketch3
pad3.Length = 0.2
pad3.Reversed = True

# Sketch on XY plane
sketch4 = body.newObject("Sketcher::SketchObject", "Sketch003")
sketch4.AttachmentSupport = (doc.getObject("XY_Plane"), [""])
sketch4.MapMode = "FlatFace"
sketch4.AttachmentOffset = App.Placement(App.Vector(0, 0, 44.3), App.Rotation())
sketch4.addGeometry(Part.LineSegment(App.Vector(-91.374773, -48.5, 0), App.Vector(-107, -48.5, 0)), False)  # 0
sketch4.addGeometry(Part.LineSegment(App.Vector(-107, -48.5, 0), App.Vector(-107, -51.5, 0)), False)  # 1
sketch4.addGeometry(Part.LineSegment(App.Vector(-107, -51.5, 0), App.Vector(-93.3, -51.5, 0)), False)  # 2
sketch4.addGeometry(Part.ArcOfCircle(Part.Circle(App.Vector(-90, -51.5, 0), App.Vector(0, 0, 1), 3.3), math.radians(114.619977), math.radians(180)), False)  # 3
sketch4.addGeometry(Part.LineSegment(App.Vector(-85, -51.5, 0), App.Vector(-85, -48.5, 0)), False)  # 4
sketch4.addGeometry(Part.LineSegment(App.Vector(-85, -48.5, 0), App.Vector(-88.625227, -48.5, 0)), False)  # 5
sketch4.addGeometry(Part.ArcOfCircle(Part.Circle(App.Vector(-90, -51.5, 0), App.Vector(0, 0, 1), 3.3), math.radians(0), math.radians(65.380023)), False)  # 6
sketch4.addGeometry(Part.LineSegment(App.Vector(-86.7, -51.5, 0), App.Vector(-85, -51.5, 0)), False)  # 7
add_polygon(sketch4, [(-62, -48.5), (-62, -51.5), (23.5, -51.5), (23.5, -48.5)])  # lines 8-11
sketch4.addGeometry(Part.LineSegment(App.Vector(-105.7, 51.5, 0), App.Vector(-107, 51.5, 0)), False)  # 12
sketch4.addGeometry(Part.LineSegment(App.Vector(-107, 51.5, 0), App.Vector(-107, 48.5, 0)), False)  # 13
sketch4.addGeometry(Part.LineSegment(App.Vector(-107, 48.5, 0), App.Vector(-104.165641, 48.5, 0)), False)  # 14
sketch4.addGeometry(Part.ArcOfCircle(Part.Circle(App.Vector(-102, 51.5, 0), App.Vector(0, 0, 1), 3.7), math.radians(180), math.radians(234.175226)), False)  # 15
sketch4.addGeometry(Part.LineSegment(App.Vector(-93.3, 51.5, 0), App.Vector(-98.3, 51.5, 0)), False)  # 16
sketch4.addGeometry(Part.ArcOfCircle(Part.Circle(App.Vector(-102, 51.5, 0), App.Vector(0, 0, 1), 3.7), math.radians(-54.175226), math.radians(0)), False)  # 17
sketch4.addGeometry(Part.LineSegment(App.Vector(-99.834359, 48.5, 0), App.Vector(-91.374773, 48.5, 0)), False)  # 18
sketch4.addGeometry(Part.ArcOfCircle(Part.Circle(App.Vector(-90, 51.5, 0), App.Vector(0, 0, 1), 3.3), math.radians(180), math.radians(245.380023)), False)  # 19
sketch4.addGeometry(Part.LineSegment(App.Vector(-85, 51.5, 0), App.Vector(-86.7, 51.5, 0)), False)  # 20
sketch4.addGeometry(Part.ArcOfCircle(Part.Circle(App.Vector(-90, 51.5, 0), App.Vector(0, 0, 1), 3.3), math.radians(-65.380023), math.radians(0)), False)  # 21
sketch4.addGeometry(Part.LineSegment(App.Vector(-88.625227, 48.5, 0), App.Vector(-85, 48.5, 0)), False)  # 22
sketch4.addGeometry(Part.LineSegment(App.Vector(-85, 48.5, 0), App.Vector(-85, 51.5, 0)), False)  # 23
add_polygon(sketch4, [(-62, 51.5), (-62, 48.5), (23.5, 48.5), (23.5, 51.5)])  # lines 24-27
sketch4.addConstraint([
    Sketcher.Constraint("Coincident", 0, 2, 1, 1),
    Sketcher.Constraint("Coincident", 1, 2, 2, 1),
    Sketcher.Constraint("Coincident", 2, 2, 3, 2),
    Sketcher.Constraint("Coincident", 3, 1, 0, 1),
    Sketcher.Constraint("Coincident", 4, 2, 5, 1),
    Sketcher.Constraint("Coincident", 5, 2, 6, 2),
    Sketcher.Constraint("Coincident", 6, 1, 7, 1),
    Sketcher.Constraint("Coincident", 7, 2, 4, 1),
    Sketcher.Constraint("Coincident", 12, 2, 13, 1),
    Sketcher.Constraint("Coincident", 13, 2, 14, 1),
    Sketcher.Constraint("Coincident", 14, 2, 15, 2),
    Sketcher.Constraint("Coincident", 15, 1, 12, 1),
    Sketcher.Constraint("Coincident", 16, 2, 17, 2),
    Sketcher.Constraint("Coincident", 17, 1, 18, 1),
    Sketcher.Constraint("Coincident", 18, 2, 19, 2),
    Sketcher.Constraint("Coincident", 19, 1, 16, 1),
    Sketcher.Constraint("Coincident", 20, 2, 21, 2),
    Sketcher.Constraint("Coincident", 21, 1, 22, 1),
    Sketcher.Constraint("Coincident", 22, 2, 23, 1),
    Sketcher.Constraint("Coincident", 23, 2, 20, 1),
    Sketcher.Constraint("Horizontal", 0),
    Sketcher.Constraint("Vertical", 1),
    Sketcher.Constraint("Horizontal", 2),
    Sketcher.Constraint("Vertical", 4),
    Sketcher.Constraint("Horizontal", 5),
    Sketcher.Constraint("Horizontal", 7),
    Sketcher.Constraint("Vertical", 8),
    Sketcher.Constraint("Horizontal", 9),
    Sketcher.Constraint("Vertical", 10),
    Sketcher.Constraint("Horizontal", 11),
    Sketcher.Constraint("Horizontal", 12),
    Sketcher.Constraint("Vertical", 13),
    Sketcher.Constraint("Horizontal", 14),
    Sketcher.Constraint("Horizontal", 16),
    Sketcher.Constraint("Horizontal", 18),
    Sketcher.Constraint("Horizontal", 20),
    Sketcher.Constraint("Horizontal", 22),
    Sketcher.Constraint("Vertical", 23),
    Sketcher.Constraint("Vertical", 24),
    Sketcher.Constraint("Horizontal", 25),
    Sketcher.Constraint("Vertical", 26),
    Sketcher.Constraint("Horizontal", 27),
    Sketcher.Constraint("Coincident", 6, 3, 3, 3),
    Sketcher.Constraint("Coincident", 17, 3, 15, 3),
    Sketcher.Constraint("Coincident", 21, 3, 19, 3),
    Sketcher.Constraint("Equal", 3, 6),
    Sketcher.Constraint("Equal", 15, 17),
    Sketcher.Constraint("Equal", 6, 19),
    Sketcher.Constraint("Equal", 19, 21),
    Sketcher.Constraint("Symmetric", 3, 3, 19, 3, -1),
    Sketcher.Constraint("Symmetric", 1, 2, 12, 2, -1),
    Sketcher.Constraint("Symmetric", 4, 2, 22, 2, -1),
    Sketcher.Constraint("Symmetric", 11, 2, 24, 2, -1),
    Sketcher.Constraint("Symmetric", 9, 2, 26, 2, -1),
    Sketcher.Constraint("Horizontal", 17, 3, 19, 3),
    Sketcher.Constraint("Horizontal", 6, 3, 1, 2),
    Sketcher.Constraint("Horizontal", 3, 1, 4, 2),
    Sketcher.Constraint("Horizontal", 2, 2, 6, 1),
    Sketcher.Constraint("Horizontal", 7, 2, 8, 2),
    Sketcher.Constraint("Horizontal", 5, 2, 10, 2),
    Sketcher.Constraint("Horizontal", 15, 1, 16, 2),
    Sketcher.Constraint("Horizontal", 14, 2, 17, 1),
    Sketcher.Constraint("Horizontal", 19, 1, 20, 2),
    Sketcher.Constraint("Horizontal", 18, 2, 21, 1),
    Sketcher.Constraint("Radius", 3, Q("3.3 mm")),
    Sketcher.Constraint("Radius", 15, Q("3.7 mm")),
    Sketcher.Constraint("DistanceX", 16, 2, 16, 1, Q("5 mm")),
    Sketcher.Constraint("DistanceY", 1, 2, 1, 1, Q("3 mm")),
    Sketcher.Constraint("DistanceX", 2, 1, 2, 2, Q("13.7 mm")),
    Sketcher.Constraint("DistanceX", 7, 1, 7, 2, Q("1.7 mm")),
    Sketcher.Constraint("DistanceX", 9, 1, 9, 2, Q("85.5 mm")),
    Sketcher.Constraint("DistanceX", 3, 3, -1, 1, Q("90 mm")),
    Sketcher.Constraint("DistanceX", 8, 2, -1, 1, Q("62 mm")),
    Sketcher.Constraint("DistanceY", 3, 3, 15, 3, Q("103 mm")),
])
pad4 = body.newObject("PartDesign::Pad", "Pad003")
pad4.Profile = sketch4
pad4.Length = 7.8
pad4.Reversed = True

doc.recompute()
